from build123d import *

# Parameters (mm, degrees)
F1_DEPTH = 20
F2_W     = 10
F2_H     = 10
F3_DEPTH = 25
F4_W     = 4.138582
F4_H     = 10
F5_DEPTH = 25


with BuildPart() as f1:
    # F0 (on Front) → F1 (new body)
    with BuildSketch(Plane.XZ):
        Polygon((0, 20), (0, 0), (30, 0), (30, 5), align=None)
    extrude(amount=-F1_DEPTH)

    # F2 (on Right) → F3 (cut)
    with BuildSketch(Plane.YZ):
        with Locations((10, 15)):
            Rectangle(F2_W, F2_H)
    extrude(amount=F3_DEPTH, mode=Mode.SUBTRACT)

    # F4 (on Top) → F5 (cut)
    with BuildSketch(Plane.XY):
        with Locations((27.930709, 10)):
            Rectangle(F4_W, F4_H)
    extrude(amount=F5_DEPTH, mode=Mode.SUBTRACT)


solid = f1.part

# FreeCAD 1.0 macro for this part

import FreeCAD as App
import Part
import Sketcher
from FreeCAD import Vector

doc = App.newDocument("Part")
body = doc.addObject("PartDesign::Body", "Body")

# Sketch on XZ plane
sketch1 = doc.addObject("Sketcher::SketchObject", "Sketch")
body.addObject(sketch1)
sketch1.AttachmentSupport = (doc.XZ_Plane, [""])
sketch1.MapMode = "FlatFace"
sketch1.addGeometry([
    Part.LineSegment(Vector(0, 20, 0), Vector(0, 0, 0)),
    Part.LineSegment(Vector(0, 0, 0), Vector(30, 0, 0)),
    Part.LineSegment(Vector(30, 0, 0), Vector(30, 5, 0)),
    Part.LineSegment(Vector(30, 5, 0), Vector(0, 20, 0)),
], False)
sketch1.addConstraint([
    Sketcher.Constraint("Coincident", 0, 2, 1, 1),
    Sketcher.Constraint("Coincident", 1, 2, 2, 1),
    Sketcher.Constraint("Coincident", 2, 2, 3, 1),
    Sketcher.Constraint("Coincident", 3, 2, 0, 1),
    Sketcher.Constraint("Vertical", 0),
    Sketcher.Constraint("Horizontal", 1),
    Sketcher.Constraint("Vertical", 2),
    Sketcher.Constraint("Coincident", 0, 2, -1, 1),
    Sketcher.Constraint("DistanceX", 1, 1, 1, 2, 30.0),
    Sketcher.Constraint("DistanceY", 0, 2, 0, 1, 20.0),
    Sketcher.Constraint("DistanceY", 2, 1, 2, 2, 5.0),
])
pad1 = doc.addObject("PartDesign::Pad", "Pad")
body.addObject(pad1)
pad1.Profile = sketch1
pad1.Length = 20
pad1.Reversed = True

# Sketch on YZ plane
sketch2 = doc.addObject("Sketcher::SketchObject", "Sketch001")
body.addObject(sketch2)
sketch2.AttachmentSupport = (doc.YZ_Plane, [""])
sketch2.MapMode = "FlatFace"
sketch2.addGeometry([
    Part.LineSegment(Vector(5, 20, 0), Vector(5, 10, 0)),
    Part.LineSegment(Vector(5, 10, 0), Vector(15, 10, 0)),
    Part.LineSegment(Vector(15, 10, 0), Vector(15, 20, 0)),
    Part.LineSegment(Vector(15, 20, 0), Vector(5, 20, 0)),
], False)
sketch2.addConstraint([
    Sketcher.Constraint("Coincident", 0, 2, 1, 1),
    Sketcher.Constraint("Coincident", 1, 2, 2, 1),
    Sketcher.Constraint("Coincident", 2, 2, 3, 1),
    Sketcher.Constraint("Coincident", 3, 2, 0, 1),
    Sketcher.Constraint("Vertical", 0),
    Sketcher.Constraint("Horizontal", 1),
    Sketcher.Constraint("Vertical", 2),
    Sketcher.Constraint("Horizontal", 3),
    Sketcher.Constraint("Equal", 3, 0),
    Sketcher.Constraint("DistanceX", 1, 1, 1, 2, 10.0),
    Sketcher.Constraint("DistanceX", -1, 1, 0, 2, 5.0),
    Sketcher.Constraint("DistanceY", -1, 1, 0, 2, 10.0),
])
pocket1 = doc.addObject("PartDesign::Pocket", "Pocket")
body.addObject(pocket1)
pocket1.Profile = sketch2
pocket1.Length = 25
pocket1.Reversed = True

# Sketch on XY plane
sketch3 = doc.addObject("Sketcher::SketchObject", "Sketch002")
body.addObject(sketch3)
sketch3.AttachmentSupport = (doc.XY_Plane, [""])
sketch3.MapMode = "FlatFace"
sketch3.addGeometry([
    Part.LineSegment(Vector(25.9, 15, 0), Vector(25.9, 5, 0)),
    Part.LineSegment(Vector(25.9, 5, 0), Vector(30, 5, 0)),
    Part.LineSegment(Vector(30, 5, 0), Vector(30, 15, 0)),
    Part.LineSegment(Vector(30, 15, 0), Vector(25.9, 15, 0)),
], False)
sketch3.addConstraint([
    Sketcher.Constraint("Coincident", 0, 2, 1, 1),
    Sketcher.Constraint("Coincident", 1, 2, 2, 1),
    Sketcher.Constraint("Coincident", 2, 2, 3, 1),
    Sketcher.Constraint("Coincident", 3, 2, 0, 1),
    Sketcher.Constraint("Vertical", 0),
    Sketcher.Constraint("Horizontal", 1),
    Sketcher.Constraint("Vertical", 2),
    Sketcher.Constraint("Horizontal", 3),
    Sketcher.Constraint("DistanceY", 0, 2, 0, 1, 10.0),
    Sketcher.Constraint("DistanceY", -1, 1, 0, 2, 5.0),
    Sketcher.Constraint("DistanceX", -1, 1, 1, 2, 30.0),
    Sketcher.Constraint("DistanceX", 1, 1, 1, 2, 4.138582),
])
pocket2 = doc.addObject("PartDesign::Pocket", "Pocket001")
body.addObject(pocket2)
pocket2.Profile = sketch3
pocket2.Length = 25
pocket2.Reversed = True

doc.recompute()
